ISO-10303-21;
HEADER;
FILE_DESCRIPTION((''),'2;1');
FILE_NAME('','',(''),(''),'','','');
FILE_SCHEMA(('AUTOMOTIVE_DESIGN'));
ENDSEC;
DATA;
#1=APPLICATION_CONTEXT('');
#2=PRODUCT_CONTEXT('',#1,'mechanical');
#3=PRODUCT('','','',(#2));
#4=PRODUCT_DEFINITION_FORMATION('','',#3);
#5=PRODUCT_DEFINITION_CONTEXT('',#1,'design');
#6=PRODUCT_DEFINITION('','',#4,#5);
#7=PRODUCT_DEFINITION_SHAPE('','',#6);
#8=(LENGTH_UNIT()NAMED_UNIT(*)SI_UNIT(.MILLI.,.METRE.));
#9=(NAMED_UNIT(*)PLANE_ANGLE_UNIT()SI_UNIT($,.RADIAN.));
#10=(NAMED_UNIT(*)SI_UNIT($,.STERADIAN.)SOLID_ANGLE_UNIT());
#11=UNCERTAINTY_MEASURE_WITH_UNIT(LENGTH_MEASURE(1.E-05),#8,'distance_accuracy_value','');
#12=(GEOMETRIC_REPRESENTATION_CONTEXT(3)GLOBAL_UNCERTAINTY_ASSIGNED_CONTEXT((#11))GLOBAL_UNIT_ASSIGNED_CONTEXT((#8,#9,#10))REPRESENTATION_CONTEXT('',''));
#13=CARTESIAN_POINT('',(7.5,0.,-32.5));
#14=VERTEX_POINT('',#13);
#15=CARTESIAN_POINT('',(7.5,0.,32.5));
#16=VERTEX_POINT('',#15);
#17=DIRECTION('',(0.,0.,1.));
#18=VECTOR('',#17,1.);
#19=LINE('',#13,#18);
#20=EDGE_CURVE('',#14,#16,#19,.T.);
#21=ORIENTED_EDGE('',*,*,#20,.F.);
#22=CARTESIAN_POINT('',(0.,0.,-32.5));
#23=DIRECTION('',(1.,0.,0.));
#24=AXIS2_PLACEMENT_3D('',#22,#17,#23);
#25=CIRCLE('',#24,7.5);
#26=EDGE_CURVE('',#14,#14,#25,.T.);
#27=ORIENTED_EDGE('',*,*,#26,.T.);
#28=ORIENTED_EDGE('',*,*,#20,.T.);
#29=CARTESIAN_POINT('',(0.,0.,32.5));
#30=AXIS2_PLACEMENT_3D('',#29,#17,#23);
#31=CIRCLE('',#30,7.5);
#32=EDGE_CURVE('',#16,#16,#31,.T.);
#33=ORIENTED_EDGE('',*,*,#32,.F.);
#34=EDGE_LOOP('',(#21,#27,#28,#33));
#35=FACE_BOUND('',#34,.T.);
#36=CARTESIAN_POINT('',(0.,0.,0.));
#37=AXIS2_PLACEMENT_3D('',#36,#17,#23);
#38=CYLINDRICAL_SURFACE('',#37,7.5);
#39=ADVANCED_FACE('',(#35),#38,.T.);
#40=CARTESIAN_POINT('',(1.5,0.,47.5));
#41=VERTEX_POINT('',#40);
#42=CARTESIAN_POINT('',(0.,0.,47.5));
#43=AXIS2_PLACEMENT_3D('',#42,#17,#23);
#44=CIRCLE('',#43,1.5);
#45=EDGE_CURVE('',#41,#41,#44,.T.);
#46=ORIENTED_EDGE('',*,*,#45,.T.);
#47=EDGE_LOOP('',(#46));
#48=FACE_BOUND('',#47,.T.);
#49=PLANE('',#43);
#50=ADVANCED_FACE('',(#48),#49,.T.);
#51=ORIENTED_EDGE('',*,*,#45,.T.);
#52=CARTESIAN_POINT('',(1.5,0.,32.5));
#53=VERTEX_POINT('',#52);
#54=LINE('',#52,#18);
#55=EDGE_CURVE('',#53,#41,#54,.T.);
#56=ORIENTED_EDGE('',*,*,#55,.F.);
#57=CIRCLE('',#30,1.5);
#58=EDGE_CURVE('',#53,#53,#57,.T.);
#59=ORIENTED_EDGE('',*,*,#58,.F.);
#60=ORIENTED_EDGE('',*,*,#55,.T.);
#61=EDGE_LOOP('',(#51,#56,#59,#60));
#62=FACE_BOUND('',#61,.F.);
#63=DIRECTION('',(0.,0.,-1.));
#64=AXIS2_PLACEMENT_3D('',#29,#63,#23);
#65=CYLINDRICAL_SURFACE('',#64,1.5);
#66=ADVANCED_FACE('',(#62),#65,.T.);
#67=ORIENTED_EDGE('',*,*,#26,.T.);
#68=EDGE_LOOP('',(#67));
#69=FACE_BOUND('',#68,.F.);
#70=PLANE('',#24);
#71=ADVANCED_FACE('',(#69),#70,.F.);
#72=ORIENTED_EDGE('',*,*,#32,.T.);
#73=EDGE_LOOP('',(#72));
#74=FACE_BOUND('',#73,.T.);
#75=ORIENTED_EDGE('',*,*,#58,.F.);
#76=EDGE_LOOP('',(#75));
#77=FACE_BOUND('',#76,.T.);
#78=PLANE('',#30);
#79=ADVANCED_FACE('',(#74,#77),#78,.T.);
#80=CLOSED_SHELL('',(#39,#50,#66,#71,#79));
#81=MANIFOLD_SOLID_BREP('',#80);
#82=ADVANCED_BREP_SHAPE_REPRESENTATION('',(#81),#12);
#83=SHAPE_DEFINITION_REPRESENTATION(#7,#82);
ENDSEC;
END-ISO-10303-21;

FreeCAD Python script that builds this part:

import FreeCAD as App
import Part
import Sketcher
Q = App.Units.Quantity

doc = App.newDocument("Part")
body = doc.addObject("PartDesign::Body", "Body")

sketch1 = body.newObject("Sketcher::SketchObject", "Sketch")
sketch1.AttachmentSupport = (doc.getObject("XY_Plane"), [""])
sketch1.MapMode = "FlatFace"
sketch1.addGeometry(Part.Circle(App.Vector(0, 0, 0), App.Vector(0, 0, 1), 8), False)
sketch1.addConstraint([
    Sketcher.Constraint("Coincident", 0, 3, -1, 1),
    Sketcher.Constraint("Diameter", 0, Q("15 mm")),
])
pad1 = body.newObject("PartDesign::Pad", "Pad")
pad1.Profile = sketch1
pad1.Length = 65
pad1.Midplane = True

sketch2 = body.newObject("Sketcher::SketchObject", "Sketch001")
sketch2.AttachmentSupport = (doc.getObject("XY_Plane"), [""])
sketch2.MapMode = "FlatFace"
sketch2.AttachmentOffset = App.Placement(App.Vector(0, 0, 32.5), App.Rotation())
sketch2.addGeometry(Part.Circle(App.Vector(0, 0, 0), App.Vector(0, 0, 1), 1.5), False)
sketch2.addConstraint([
    Sketcher.Constraint("Coincident", 0, 3, -1, 1),
    Sketcher.Constraint("Diameter", 0, Q("3 mm")),
])
pad2 = body.newObject("PartDesign::Pad", "Pad001")
pad2.Profile = sketch2
pad2.Length = 15

doc.recompute()
